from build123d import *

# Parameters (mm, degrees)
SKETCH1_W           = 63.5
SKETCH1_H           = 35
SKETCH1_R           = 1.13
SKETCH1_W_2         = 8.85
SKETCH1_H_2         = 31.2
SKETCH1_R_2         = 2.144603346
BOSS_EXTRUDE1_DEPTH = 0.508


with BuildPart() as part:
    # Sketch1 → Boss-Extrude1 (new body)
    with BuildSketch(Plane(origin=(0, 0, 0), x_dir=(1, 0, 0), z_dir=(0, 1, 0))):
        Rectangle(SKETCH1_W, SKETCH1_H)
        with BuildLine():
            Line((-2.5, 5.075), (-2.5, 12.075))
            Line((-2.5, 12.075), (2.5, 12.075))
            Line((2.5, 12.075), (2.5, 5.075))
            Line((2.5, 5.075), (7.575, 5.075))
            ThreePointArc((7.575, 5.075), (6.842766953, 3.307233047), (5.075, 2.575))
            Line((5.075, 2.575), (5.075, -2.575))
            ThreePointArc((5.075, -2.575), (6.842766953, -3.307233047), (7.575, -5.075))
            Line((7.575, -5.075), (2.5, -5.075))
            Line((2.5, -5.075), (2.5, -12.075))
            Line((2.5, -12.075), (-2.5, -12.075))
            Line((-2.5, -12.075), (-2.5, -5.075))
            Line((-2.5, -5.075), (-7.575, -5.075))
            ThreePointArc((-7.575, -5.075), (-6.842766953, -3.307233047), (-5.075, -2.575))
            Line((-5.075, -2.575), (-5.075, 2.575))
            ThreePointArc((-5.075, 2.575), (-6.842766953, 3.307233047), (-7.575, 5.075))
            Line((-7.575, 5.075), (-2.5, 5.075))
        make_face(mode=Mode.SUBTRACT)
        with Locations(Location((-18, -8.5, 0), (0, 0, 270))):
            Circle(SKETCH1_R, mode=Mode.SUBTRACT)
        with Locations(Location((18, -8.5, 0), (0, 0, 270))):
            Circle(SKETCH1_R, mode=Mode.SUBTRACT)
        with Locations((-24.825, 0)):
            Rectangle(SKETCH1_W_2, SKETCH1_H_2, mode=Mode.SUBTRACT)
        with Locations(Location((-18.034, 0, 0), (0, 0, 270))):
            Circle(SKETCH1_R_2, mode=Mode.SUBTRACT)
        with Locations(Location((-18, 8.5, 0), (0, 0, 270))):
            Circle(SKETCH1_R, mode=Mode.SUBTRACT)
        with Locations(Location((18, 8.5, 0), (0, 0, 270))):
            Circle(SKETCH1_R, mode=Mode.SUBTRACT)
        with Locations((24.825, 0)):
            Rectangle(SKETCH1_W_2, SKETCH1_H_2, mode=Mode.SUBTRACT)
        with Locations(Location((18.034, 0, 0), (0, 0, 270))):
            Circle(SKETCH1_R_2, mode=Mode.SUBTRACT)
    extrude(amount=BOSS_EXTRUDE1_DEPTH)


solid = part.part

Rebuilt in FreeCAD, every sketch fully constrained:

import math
import FreeCAD as App
import Part
import Sketcher

doc = App.newDocument("Part")
body = doc.addObject("PartDesign::Body", "Body")

sketch1 = body.newObject("Sketcher::SketchObject", "Sketch")
sketch1.AttachmentSupport = (doc.getObject("XZ_Plane"), [""])
sketch1.MapMode = "FlatFace"
sketch1.addGeometry([
    Part.LineSegment(App.Vector(-31.8, -17.5, 0), App.Vector(-31.8, 17.5, 0)),
    Part.LineSegment(App.Vector(-31.8, 17.5, 0), App.Vector(31.8, 17.5, 0)),
    Part.LineSegment(App.Vector(31.8, 17.5, 0), App.Vector(31.8, -17.5, 0)),
    Part.LineSegment(App.Vector(31.8, -17.5, 0), App.Vector(-31.8, -17.5, 0)),
    Part.Circle(App.Vector(-18, 8.5, 0), App.Vector(0, 0, 1), 1.1),
    Part.Circle(App.Vector(18, 8.5, 0), App.Vector(0, 0, 1), 1.1),
    Part.LineSegment(App.Vector(-20.4, 15.6, 0), App.Vector(-29.2, 15.6, 0)),
    Part.LineSegment(App.Vector(-29.2, 15.6, 0), App.Vector(-29.2, -15.6, 0)),
    Part.LineSegment(App.Vector(-29.2, -15.6, 0), App.Vector(-20.4, -15.6, 0)),
    Part.LineSegment(App.Vector(-20.4, -15.6, 0), App.Vector(-20.4, 15.6, 0)),
    Part.Circle(App.Vector(-18, 0, 0), App.Vector(0, 0, 1), 2.1),
    Part.Circle(App.Vector(-18, -8.5, 0), App.Vector(0, 0, 1), 1.1),
    Part.LineSegment(App.Vector(-7.6, -5.1, 0), App.Vector(-2.5, -5.1, 0)),
    Part.LineSegment(App.Vector(-2.5, -5.1, 0), App.Vector(-2.5, -12.1, 0)),
    Part.LineSegment(App.Vector(-2.5, -12.1, 0), App.Vector(2.5, -12.1, 0)),
    Part.LineSegment(App.Vector(2.5, -12.1, 0), App.Vector(2.5, -5.1, 0)),
    Part.LineSegment(App.Vector(2.5, -5.1, 0), App.Vector(7.6, -5.1, 0)),
    Part.ArcOfCircle(Part.Circle(App.Vector(5.1, -5.1, 0), App.Vector(0, 0, 1), 2.5), math.radians(0), math.radians(90)),
    Part.LineSegment(App.Vector(5.1, -2.6, 0), App.Vector(5.1, 2.6, 0)),
    Part.ArcOfCircle(Part.Circle(App.Vector(5.1, 5.1, 0), App.Vector(0, 0, 1), 2.5), math.radians(-90), math.radians(0)),
    Part.LineSegment(App.Vector(7.6, 5.1, 0), App.Vector(2.5, 5.1, 0)),
    Part.LineSegment(App.Vector(2.5, 5.1, 0), App.Vector(2.5, 12.1, 0)),
    Part.LineSegment(App.Vector(2.5, 12.1, 0), App.Vector(-2.5, 12.1, 0)),
    Part.LineSegment(App.Vector(-2.5, 12.1, 0), App.Vector(-2.5, 5.1, 0)),
    Part.LineSegment(App.Vector(-2.5, 5.1, 0), App.Vector(-7.6, 5.1, 0)),
    Part.ArcOfCircle(Part.Circle(App.Vector(-5.1, 5.1, 0), App.Vector(0, 0, 1), 2.5), math.radians(180), math.radians(270)),
    Part.LineSegment(App.Vector(-5.1, 2.6, 0), App.Vector(-5.1, -2.6, 0)),
    Part.ArcOfCircle(Part.Circle(App.Vector(-5.1, -5.1, 0), App.Vector(0, 0, 1), 2.5), math.radians(90), math.radians(180)),
    Part.Circle(App.Vector(18, 0, 0), App.Vector(0, 0, 1), 2.1),
    Part.LineSegment(App.Vector(29.2, 15.6, 0), App.Vector(20.4, 15.6, 0)),
    Part.LineSegment(App.Vector(20.4, 15.6, 0), App.Vector(20.4, -15.6, 0)),
    Part.LineSegment(App.Vector(20.4, -15.6, 0), App.Vector(29.2, -15.6, 0)),
    Part.LineSegment(App.Vector(29.2, -15.6, 0), App.Vector(29.2, 15.6, 0)),
    Part.Circle(App.Vector(18, -8.5, 0), App.Vector(0, 0, 1), 1.1),
], False)
sketch1.addConstraint([
    Sketcher.Constraint("Coincident", 0, 2, 1, 1),
    Sketcher.Constraint("Coincident", 1, 2, 2, 1),
    Sketcher.Constraint("Coincident", 2, 2, 3, 1),
    Sketcher.Constraint("Coincident", 3, 2, 0, 1),
    Sketcher.Constraint("Coincident", 6, 2, 7, 1),
    Sketcher.Constraint("Coincident", 7, 2, 8, 1),
    Sketcher.Constraint("Coincident", 8, 2, 9, 1),
    Sketcher.Constraint("Coincident", 9, 2, 6, 1),
    Sketcher.Constraint("Coincident", 12, 2, 13, 1),
    Sketcher.Constraint("Coincident", 13, 2, 14, 1),
    Sketcher.Constraint("Coincident", 14, 2, 15, 1),
    Sketcher.Constraint("Coincident", 15, 2, 16, 1),
    Sketcher.Constraint("Coincident", 16, 2, 17, 1),
    Sketcher.Constraint("Coincident", 17, 2, 18, 1),
    Sketcher.Constraint("Coincident", 18, 2, 19, 1),
    Sketcher.Constraint("Coincident", 19, 2, 20, 1),
    Sketcher.Constraint("Coincident", 20, 2, 21, 1),
    Sketcher.Constraint("Coincident", 21, 2, 22, 1),
    Sketcher.Constraint("Coincident", 22, 2, 23, 1),
    Sketcher.Constraint("Coincident", 23, 2, 24, 1),
    Sketcher.Constraint("Coincident", 24, 2, 25, 1),
    Sketcher.Constraint("Coincident", 25, 2, 26, 1),
    Sketcher.Constraint("Coincident", 26, 2, 27, 1),
    Sketcher.Constraint("Coincident", 27, 2, 12, 1),
    Sketcher.Constraint("Coincident", 29, 2, 30, 1),
    Sketcher.Constraint("Coincident", 30, 2, 31, 1),
    Sketcher.Constraint("Coincident", 31, 2, 32, 1),
    Sketcher.Constraint("Coincident", 32, 2, 29, 1),
    Sketcher.Constraint("Vertical", 0),
    Sketcher.Constraint("Horizontal", 1),
    Sketcher.Constraint("Vertical", 2),
    Sketcher.Constraint("Horizontal", 3),
    Sketcher.Constraint("Horizontal", 6),
    Sketcher.Constraint("Vertical", 7),
    Sketcher.Constraint("Horizontal", 8),
    Sketcher.Constraint("Vertical", 9),
    Sketcher.Constraint("Horizontal", 12),
    Sketcher.Constraint("Vertical", 13),
    Sketcher.Constraint("Horizontal", 14),
    Sketcher.Constraint("Vertical", 15),
    Sketcher.Constraint("Horizontal", 16),
    Sketcher.Constraint("Vertical", 18),
    Sketcher.Constraint("Horizontal", 20),
    Sketcher.Constraint("Vertical", 21),
    Sketcher.Constraint("Horizontal", 22),
    Sketcher.Constraint("Vertical", 23),
    Sketcher.Constraint("Horizontal", 24),
    Sketcher.Constraint("Vertical", 26),
    Sketcher.Constraint("Horizontal", 29),
    Sketcher.Constraint("Vertical", 30),
    Sketcher.Constraint("Horizontal", 31),
    Sketcher.Constraint("Vertical", 32),
    Sketcher.Constraint("Equal", 4, 5),
    Sketcher.Constraint("Equal", 5, 11),
    Sketcher.Constraint("Equal", 17, 19),
    Sketcher.Constraint("Equal", 19, 25),
    Sketcher.Constraint("Equal", 25, 27),
    Sketcher.Constraint("Equal", 10, 28),
    Sketcher.Constraint("Equal", 11, 33),
    Sketcher.Constraint("Symmetric", 5, 3, 11, 3, -1, 1),
    Sketcher.Constraint("Symmetric", 17, 3, 25, 3, -1, 1),
    Sketcher.Constraint("Symmetric", 19, 3, 27, 3, -1, 1),
    Sketcher.Constraint("Symmetric", 10, 3, 28, 3, -1, 1),
    Sketcher.Constraint("Symmetric", 4, 3, 33, 3, -1, 1),
    Sketcher.Constraint("Symmetric", 0, 2, 2, 2, -1, 1),
    Sketcher.Constraint("Symmetric", 12, 2, 20, 2, -1, 1),
    Sketcher.Constraint("Symmetric", 14, 2, 22, 2, -1, 1),
    Sketcher.Constraint("Symmetric", 8, 2, 29, 2, -1, 1),
    Sketcher.Constraint("Symmetric", 6, 2, 31, 2, -1, 1),
    Sketcher.Constraint("Symmetric", 4, 3, 5, 3, -2),
    Sketcher.Constraint("Symmetric", 19, 3, 25, 3, -2),
    Sketcher.Constraint("Symmetric", 12, 2, 15, 2, -2),
    Sketcher.Constraint("PointOnObject", 10, 3, -1),
    Sketcher.Constraint("Horizontal", 27, 3, 12, 2),
    Sketcher.Constraint("Horizontal", 20, 2, 23, 2),
    Sketcher.Constraint("Horizontal", 9, 2, 29, 2),
    Sketcher.Constraint("Vertical", 19, 3, 17, 2),
    Sketcher.Constraint("Vertical", 27, 3, 25, 2),
    Sketcher.Constraint("Radius", 17, 2.5),
    Sketcher.Constraint("Diameter", 4, 2.26),
    Sketcher.Constraint("DistanceX", 14, 1, 14, 2, 5.0),
    Sketcher.Constraint("DistanceY", 0, 1, 0, 2, 35.0),
    Sketcher.Constraint("DistanceY", 13, 2, 13, 1, 7.0),
    Sketcher.Constraint("DistanceX", 1, 1, 1, 2, 63.5),
    Sketcher.Constraint("DistanceY", 7, 2, 7, 1, 31.2),
    Sketcher.Constraint("DistanceX", 4, 3, -1, 1, 18.0),
    Sketcher.Constraint("DistanceY", 11, 3, 4, 3, 17.0),
    Sketcher.Constraint("DistanceX", 6, 2, 6, 1, 8.85),
    Sketcher.Constraint("DistanceY", 18, 1, 18, 2, 5.15),
    Sketcher.Constraint("DistanceX", 8, 2, -1, 1, 20.4),
    Sketcher.Constraint("DistanceX", 12, 1, 12, 2, 5.075),
    Sketcher.Constraint("Diameter", 10, 4.289207),
    Sketcher.Constraint("DistanceX", 10, 3, -1, 1, 18.034),
])
pad1 = body.newObject("PartDesign::Pad", "Pad")
pad1.Profile = sketch1
pad1.Length = 0.508
pad1.Reversed = True

doc.recompute()
